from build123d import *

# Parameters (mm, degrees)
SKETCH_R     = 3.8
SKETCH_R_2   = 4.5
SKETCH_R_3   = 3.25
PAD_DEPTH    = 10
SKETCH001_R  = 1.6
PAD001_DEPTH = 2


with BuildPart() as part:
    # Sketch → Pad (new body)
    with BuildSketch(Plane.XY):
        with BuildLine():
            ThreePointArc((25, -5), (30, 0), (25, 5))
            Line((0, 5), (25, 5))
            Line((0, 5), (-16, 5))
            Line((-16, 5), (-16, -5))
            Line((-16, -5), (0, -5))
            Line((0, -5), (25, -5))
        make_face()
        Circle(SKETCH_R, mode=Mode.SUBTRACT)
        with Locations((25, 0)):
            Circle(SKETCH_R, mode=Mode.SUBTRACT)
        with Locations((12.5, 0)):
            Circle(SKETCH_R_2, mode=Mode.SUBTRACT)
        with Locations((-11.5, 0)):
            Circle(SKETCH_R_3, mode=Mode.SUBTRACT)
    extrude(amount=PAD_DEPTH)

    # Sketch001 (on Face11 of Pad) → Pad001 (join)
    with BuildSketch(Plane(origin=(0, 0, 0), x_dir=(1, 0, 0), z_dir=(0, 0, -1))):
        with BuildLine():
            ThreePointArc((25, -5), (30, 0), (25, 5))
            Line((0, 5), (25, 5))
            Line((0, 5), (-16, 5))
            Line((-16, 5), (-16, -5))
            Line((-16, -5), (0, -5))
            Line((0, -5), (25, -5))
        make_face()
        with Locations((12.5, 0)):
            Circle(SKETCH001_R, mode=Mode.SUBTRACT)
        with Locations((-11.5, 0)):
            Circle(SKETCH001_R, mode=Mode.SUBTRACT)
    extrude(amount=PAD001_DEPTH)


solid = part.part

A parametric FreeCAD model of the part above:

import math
import FreeCAD as App
import Part
import Sketcher
from FreeCAD import Vector
Q = App.Units.Quantity

doc = App.newDocument("Part")
body = doc.addObject("PartDesign::Body", "Body")

# Sketch on XY plane
sketch1 = body.newObject("Sketcher::SketchObject", "Sketch")
sketch1.AttachmentSupport = (doc.getObject("XY_Plane"), [""])
sketch1.MapMode = "FlatFace"
sketch1.addGeometry([
    Part.ArcOfCircle(Part.Circle(Vector(25, 0, 0), Vector(0, 0, 1), 5), math.radians(-90), math.radians(90)),  # 0
    Part.LineSegment(Vector(25, 5, 0), Vector(-16, 5, 0)),  # 1
    Part.LineSegment(Vector(-16, 5, 0), Vector(-16, -5, 0)),  # 2
    Part.LineSegment(Vector(-16, -5, 0), Vector(25, -5, 0)),  # 3
    Part.Circle(Vector(-11.5, 0, 0), Vector(0, 0, 1), 3.2),  # 4
    Part.Circle(Vector(0, 0, 0), Vector(0, 0, 1), 3.8),  # 5
    Part.Circle(Vector(12.5, 0, 0), Vector(0, 0, 1), 4.5),  # 6
    Part.Circle(Vector(25, 0, 0), Vector(0, 0, 1), 3.8),  # 7
], False)
sketch1.addConstraint([
    Sketcher.Constraint("Tangent", 0, 2, 1, 1),
    Sketcher.Constraint("Coincident", 1, 2, 2, 1),
    Sketcher.Constraint("Coincident", 2, 2, 3, 1),
    Sketcher.Constraint("Tangent", 3, 2, 0, 1),
    Sketcher.Constraint("Horizontal", 1),
    Sketcher.Constraint("Vertical", 2),
    Sketcher.Constraint("Horizontal", 3),
    Sketcher.Constraint("Coincident", 5, 3, -1, 1),
    Sketcher.Constraint("Coincident", 7, 3, 0, 3),
    Sketcher.Constraint("Equal", 5, 7),
    Sketcher.Constraint("PointOnObject", 0, 3, -1),
    Sketcher.Constraint("PointOnObject", 4, 3, -1),
    Sketcher.Constraint("PointOnObject", 6, 3, -1),
    Sketcher.Constraint("Diameter", 6, Q("9 mm")),
    Sketcher.Constraint("Radius", 0, Q("5 mm")),
    Sketcher.Constraint("Diameter", 4, Q("6.5 mm")),
    Sketcher.Constraint("Diameter", 5, Q("7.6 mm")),
    Sketcher.Constraint("DistanceX", 1, 2, 1, 1, Q("41 mm")),
    Sketcher.Constraint("DistanceX", -1, 1, 0, 3, Q("25 mm")),
    Sketcher.Constraint("DistanceX", 4, 3, 6, 3, Q("24 mm")),
    Sketcher.Constraint("DistanceX", 4, 3, -1, 1, Q("11.5 mm")),
])
pad1 = body.newObject("PartDesign::Pad", "Pad")
pad1.Profile = sketch1
pad1.Length = 10

# Sketch on XY plane
sketch2 = body.newObject("Sketcher::SketchObject", "Sketch001")
sketch2.AttachmentSupport = (doc.getObject("XY_Plane"), [""])
sketch2.MapMode = "FlatFace"
sketch2.addGeometry([
    Part.ArcOfCircle(Part.Circle(Vector(25, 0, 0), Vector(0, 0, 1), 5), math.radians(-90), math.radians(90)),  # 0
    Part.LineSegment(Vector(25, -5, 0), Vector(-16, -5, 0)),  # 1
    Part.LineSegment(Vector(-16, -5, 0), Vector(-16, 5, 0)),  # 2
    Part.LineSegment(Vector(-16, 5, 0), Vector(25, 5, 0)),  # 3
    Part.Circle(Vector(-11.5, 0, 0), Vector(0, 0, 1), 1.6),  # 4
    Part.Circle(Vector(12.5, 0, 0), Vector(0, 0, 1), 1.6),  # 5
], False)
sketch2.addConstraint([
    Sketcher.Constraint("Tangent", 0, 1, 1, 1),
    Sketcher.Constraint("Coincident", 1, 2, 2, 1),
    Sketcher.Constraint("Coincident", 2, 2, 3, 1),
    Sketcher.Constraint("Tangent", 3, 2, 0, 2),
    Sketcher.Constraint("Horizontal", 1),
    Sketcher.Constraint("Vertical", 2),
    Sketcher.Constraint("Horizontal", 3),
    Sketcher.Constraint("Equal", 4, 5),
    Sketcher.Constraint("PointOnObject", 0, 3, -1),
    Sketcher.Constraint("PointOnObject", 4, 3, -1),
    Sketcher.Constraint("PointOnObject", 5, 3, -1),
    Sketcher.Constraint("Radius", 0, Q("5 mm")),
    Sketcher.Constraint("Diameter", 4, Q("3.2 mm")),
    Sketcher.Constraint("DistanceX", 1, 2, 1, 1, Q("41 mm")),
    Sketcher.Constraint("DistanceX", -1, 1, 0, 3, Q("25 mm")),
    Sketcher.Constraint("DistanceX", 4, 3, 5, 3, Q("24 mm")),
    Sketcher.Constraint("DistanceX", 4, 3, -1, 1, Q("11.5 mm")),
])
pad2 = body.newObject("PartDesign::Pad", "Pad001")
pad2.Profile = sketch2
pad2.Length = 2
pad2.Reversed = True

doc.recompute()
